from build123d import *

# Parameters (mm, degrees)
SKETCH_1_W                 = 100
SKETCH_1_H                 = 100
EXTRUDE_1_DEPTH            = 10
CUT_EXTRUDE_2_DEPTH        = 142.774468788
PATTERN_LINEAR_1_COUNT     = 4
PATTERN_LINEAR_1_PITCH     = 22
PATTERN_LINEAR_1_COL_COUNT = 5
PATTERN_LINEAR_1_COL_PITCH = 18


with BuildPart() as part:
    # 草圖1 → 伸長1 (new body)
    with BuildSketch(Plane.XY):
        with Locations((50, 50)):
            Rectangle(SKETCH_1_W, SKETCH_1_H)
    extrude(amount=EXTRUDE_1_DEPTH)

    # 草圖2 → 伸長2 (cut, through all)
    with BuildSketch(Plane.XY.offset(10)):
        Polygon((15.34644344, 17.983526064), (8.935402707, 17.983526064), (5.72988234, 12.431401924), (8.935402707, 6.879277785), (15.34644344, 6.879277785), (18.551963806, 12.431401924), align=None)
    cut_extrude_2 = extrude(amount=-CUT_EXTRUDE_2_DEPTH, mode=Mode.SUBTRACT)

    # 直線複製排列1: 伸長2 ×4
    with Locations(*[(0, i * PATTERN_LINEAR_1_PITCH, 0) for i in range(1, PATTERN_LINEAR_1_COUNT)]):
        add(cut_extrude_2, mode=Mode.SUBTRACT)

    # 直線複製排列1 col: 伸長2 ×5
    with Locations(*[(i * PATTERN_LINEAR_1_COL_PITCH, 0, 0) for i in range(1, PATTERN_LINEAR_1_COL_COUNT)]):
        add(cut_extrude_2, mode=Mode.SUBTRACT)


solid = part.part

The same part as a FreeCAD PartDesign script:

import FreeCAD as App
import Part
import Sketcher
Q = App.Units.Quantity


def add_polygon(sketch, points):
    """Adds a closed chain of lines whose ends are joined by coincident constraints."""
    first, n = sketch.GeometryCount, len(points)
    for a, b in zip(points, points[1:] + points[:1]):
        sketch.addGeometry(Part.LineSegment(App.Vector(*a, 0), App.Vector(*b, 0)), False)
    for i in range(n):
        sketch.addConstraint(Sketcher.Constraint("Coincident", first + i, 2, first + (i + 1) % n, 1))

doc = App.newDocument("Part")
body = doc.addObject("PartDesign::Body", "Body")

# Sketch on XY plane
sketch1 = doc.addObject("Sketcher::SketchObject", "Sketch")
body.addObject(sketch1)
sketch1.AttachmentSupport = (doc.XY_Plane, [""])
sketch1.MapMode = "FlatFace"
add_polygon(sketch1, [(0, 100), (0, 0), (100, 0), (100, 100)])  # lines 0-3
sketch1.addConstraint([
    Sketcher.Constraint("Vertical", 0),
    Sketcher.Constraint("Horizontal", 1),
    Sketcher.Constraint("Vertical", 2),
    Sketcher.Constraint("Horizontal", 3),
    Sketcher.Constraint("Coincident", 0, 2, -1, 1),
    Sketcher.Constraint("Equal", 3, 0),
    Sketcher.Constraint("DistanceX", 1, 1, 1, 2, 100.0),
])
pad1 = doc.addObject("PartDesign::Pad", "Pad")
body.addObject(pad1)
pad1.Profile = sketch1
pad1.Length = 10

# Sketch on XY plane
sketch2 = doc.addObject("Sketcher::SketchObject", "Sketch001")
body.addObject(sketch2)
sketch2.AttachmentSupport = (doc.XY_Plane, [""])
sketch2.MapMode = "FlatFace"
sketch2.AttachmentOffset = App.Placement(App.Vector(0, 0, 10), App.Rotation())
add_polygon(sketch2, [(15, 18), (9, 18), (6, 12), (9, 7), (15, 7), (19, 12)])  # lines 0-5
sketch2.addConstraint([
    Sketcher.Constraint("Horizontal", 0),
    Sketcher.Constraint("Horizontal", 3),
    Sketcher.Constraint("Parallel", 1, 4),
    Sketcher.Constraint("Parallel", 2, 5),
    Sketcher.Constraint("Horizontal", 1, 2, 4, 2),
    Sketcher.Constraint("Vertical", 0, 2, 2, 2),
    Sketcher.Constraint("Vertical", 3, 2, 5, 2),
    Sketcher.Constraint("Angle", 1, Q("-120 deg")),
    Sketcher.Constraint("DistanceX", 0, 2, 0, 1, 6.411041),
    Sketcher.Constraint("DistanceY", -1, 1, 1, 2, 12.431402),
    Sketcher.Constraint("Distance", 1, 6.411041),
    Sketcher.Constraint("DistanceX", -1, 1, 0, 2, 8.935403),
])
pocket1 = doc.addObject("PartDesign::Pocket", "Pocket")
body.addObject(pocket1)
pocket1.Profile = sketch2
pocket1.Type = "ThroughAll"
doc.recompute()

linearpattern = doc.addObject("PartDesign::LinearPattern", "LinearPattern")
body.addObject(linearpattern)
linearpattern.Originals = [pocket1]
linearpattern.Direction = (doc.Y_Axis, [""])
linearpattern.Mode = "offset"
linearpattern.Offset = 22
linearpattern.Occurrences = 4
body.Tip = linearpattern
doc.recompute()

linearpattern2 = doc.addObject("PartDesign::LinearPattern", "LinearPattern001")
body.addObject(linearpattern2)
linearpattern2.Originals = [pocket1]
linearpattern2.Direction = (doc.X_Axis, [""])
linearpattern2.Mode = "offset"
linearpattern2.Offset = 18
linearpattern2.Occurrences = 5
body.Tip = linearpattern2

doc.recompute()
